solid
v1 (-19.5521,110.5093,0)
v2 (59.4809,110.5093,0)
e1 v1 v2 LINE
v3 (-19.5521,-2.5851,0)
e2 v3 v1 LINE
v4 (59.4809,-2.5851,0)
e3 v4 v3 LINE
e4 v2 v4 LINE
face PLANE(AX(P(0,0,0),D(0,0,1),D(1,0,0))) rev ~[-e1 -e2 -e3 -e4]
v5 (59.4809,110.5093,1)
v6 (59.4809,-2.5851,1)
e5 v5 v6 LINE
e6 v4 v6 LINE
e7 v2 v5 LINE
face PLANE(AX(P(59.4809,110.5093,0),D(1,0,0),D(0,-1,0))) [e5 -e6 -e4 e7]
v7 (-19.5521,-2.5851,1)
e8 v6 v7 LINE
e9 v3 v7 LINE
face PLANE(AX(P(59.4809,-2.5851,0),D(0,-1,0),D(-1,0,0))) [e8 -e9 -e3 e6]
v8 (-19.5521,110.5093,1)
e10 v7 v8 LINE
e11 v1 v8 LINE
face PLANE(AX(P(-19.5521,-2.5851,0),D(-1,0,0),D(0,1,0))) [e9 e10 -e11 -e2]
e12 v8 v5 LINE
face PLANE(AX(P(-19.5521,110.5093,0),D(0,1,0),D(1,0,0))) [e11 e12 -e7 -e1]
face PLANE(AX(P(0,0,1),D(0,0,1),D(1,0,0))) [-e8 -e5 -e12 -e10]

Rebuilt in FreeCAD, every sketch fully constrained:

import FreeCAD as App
import Part
import Sketcher
from FreeCAD import Vector


def add_polygon(sketch, points):
    """Adds a closed chain of lines whose ends are joined by coincident constraints."""
    first, n = sketch.GeometryCount, len(points)
    for a, b in zip(points, points[1:] + points[:1]):
        sketch.addGeometry(Part.LineSegment(App.Vector(*a, 0), App.Vector(*b, 0)), False)
    for i in range(n):
        sketch.addConstraint(Sketcher.Constraint("Coincident", first + i, 2, first + (i + 1) % n, 1))

doc = App.newDocument("Part")
body = doc.addObject("PartDesign::Body", "Body")

sketch1 = doc.addObject("Sketcher::SketchObject", "Sketch")
body.addObject(sketch1)
sketch1.AttachmentSupport = (doc.XY_Plane, [""])
sketch1.MapMode = "FlatFace"
add_polygon(sketch1, [(59, 111), (-20, 111), (-20, -3), (59, -3)])
sketch1.addConstraint(Sketcher.Constraint("Horizontal", 0))
sketch1.addConstraint(Sketcher.Constraint("Vertical", 1))
sketch1.addConstraint(Sketcher.Constraint("Horizontal", 2))
sketch1.addConstraint(Sketcher.Constraint("Vertical", 3))
sketch1.addConstraint(Sketcher.Constraint("DistanceX", 0, 2, 0, 1, 79.033))
sketch1.addConstraint(Sketcher.Constraint("DistanceY", 1, 2, 1, 1, 113.0944))
sketch1.addConstraint(Sketcher.Constraint("DistanceX", 0, 2, -1, 1, 19.552))
sketch1.addConstraint(Sketcher.Constraint("DistanceY", 1, 2, -1, 1, 2.585))
pad1 = doc.addObject("PartDesign::Pad", "Pad")
body.addObject(pad1)
pad1.Profile = sketch1
pad1.Length = 1

doc.recompute()
